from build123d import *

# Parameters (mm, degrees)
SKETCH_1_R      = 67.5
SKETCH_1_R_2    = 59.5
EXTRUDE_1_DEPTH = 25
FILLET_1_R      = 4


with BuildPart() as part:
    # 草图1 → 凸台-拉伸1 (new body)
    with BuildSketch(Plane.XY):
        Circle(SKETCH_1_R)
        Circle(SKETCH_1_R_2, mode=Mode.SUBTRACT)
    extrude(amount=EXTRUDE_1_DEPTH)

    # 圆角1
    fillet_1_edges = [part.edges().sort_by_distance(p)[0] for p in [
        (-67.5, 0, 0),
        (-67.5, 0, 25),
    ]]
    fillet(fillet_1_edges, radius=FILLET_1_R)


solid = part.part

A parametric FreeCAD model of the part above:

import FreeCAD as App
import Part
import Sketcher


def edges_at(feature, points):
    """Names of the edges that pass closest to the given points."""
    edges = feature.Shape.Edges
    near = lambda p: min(range(len(edges)), key=lambda i: edges[i].distToShape(Part.Vertex(*p))[0])
    return sorted({f"Edge{near(p) + 1}" for p in points})

doc = App.newDocument("Part")
body = doc.addObject("PartDesign::Body", "Body")

# Sketch on XY plane
sketch1 = doc.addObject("Sketcher::SketchObject", "Sketch")
body.addObject(sketch1)
sketch1.AttachmentSupport = (doc.XY_Plane, [""])
sketch1.MapMode = "FlatFace"
sketch1.addGeometry(Part.Circle(App.Vector(0, 0, 0), App.Vector(0, 0, 1), 68), False)
sketch1.addGeometry(Part.Circle(App.Vector(0, 0, 0), App.Vector(0, 0, 1), 60), False)
sketch1.addConstraint(Sketcher.Constraint("Coincident", 0, 3, -1, 1))
sketch1.addConstraint(Sketcher.Constraint("Coincident", 1, 3, -1, 1))
sketch1.addConstraint(Sketcher.Constraint("Diameter", 0, 135.0))
sketch1.addConstraint(Sketcher.Constraint("Diameter", 1, 119.0))
pad1 = doc.addObject("PartDesign::Pad", "Pad")
body.addObject(pad1)
pad1.Profile = sketch1
pad1.Length = 25
doc.recompute()

fillet = doc.addObject("PartDesign::Fillet", "Fillet")
body.addObject(fillet)
fillet.Base = (pad1, edges_at(pad1, [(-67.5, 0, 0), (-67.5, 0, 25)]))
fillet.Radius = 4

doc.recompute()
